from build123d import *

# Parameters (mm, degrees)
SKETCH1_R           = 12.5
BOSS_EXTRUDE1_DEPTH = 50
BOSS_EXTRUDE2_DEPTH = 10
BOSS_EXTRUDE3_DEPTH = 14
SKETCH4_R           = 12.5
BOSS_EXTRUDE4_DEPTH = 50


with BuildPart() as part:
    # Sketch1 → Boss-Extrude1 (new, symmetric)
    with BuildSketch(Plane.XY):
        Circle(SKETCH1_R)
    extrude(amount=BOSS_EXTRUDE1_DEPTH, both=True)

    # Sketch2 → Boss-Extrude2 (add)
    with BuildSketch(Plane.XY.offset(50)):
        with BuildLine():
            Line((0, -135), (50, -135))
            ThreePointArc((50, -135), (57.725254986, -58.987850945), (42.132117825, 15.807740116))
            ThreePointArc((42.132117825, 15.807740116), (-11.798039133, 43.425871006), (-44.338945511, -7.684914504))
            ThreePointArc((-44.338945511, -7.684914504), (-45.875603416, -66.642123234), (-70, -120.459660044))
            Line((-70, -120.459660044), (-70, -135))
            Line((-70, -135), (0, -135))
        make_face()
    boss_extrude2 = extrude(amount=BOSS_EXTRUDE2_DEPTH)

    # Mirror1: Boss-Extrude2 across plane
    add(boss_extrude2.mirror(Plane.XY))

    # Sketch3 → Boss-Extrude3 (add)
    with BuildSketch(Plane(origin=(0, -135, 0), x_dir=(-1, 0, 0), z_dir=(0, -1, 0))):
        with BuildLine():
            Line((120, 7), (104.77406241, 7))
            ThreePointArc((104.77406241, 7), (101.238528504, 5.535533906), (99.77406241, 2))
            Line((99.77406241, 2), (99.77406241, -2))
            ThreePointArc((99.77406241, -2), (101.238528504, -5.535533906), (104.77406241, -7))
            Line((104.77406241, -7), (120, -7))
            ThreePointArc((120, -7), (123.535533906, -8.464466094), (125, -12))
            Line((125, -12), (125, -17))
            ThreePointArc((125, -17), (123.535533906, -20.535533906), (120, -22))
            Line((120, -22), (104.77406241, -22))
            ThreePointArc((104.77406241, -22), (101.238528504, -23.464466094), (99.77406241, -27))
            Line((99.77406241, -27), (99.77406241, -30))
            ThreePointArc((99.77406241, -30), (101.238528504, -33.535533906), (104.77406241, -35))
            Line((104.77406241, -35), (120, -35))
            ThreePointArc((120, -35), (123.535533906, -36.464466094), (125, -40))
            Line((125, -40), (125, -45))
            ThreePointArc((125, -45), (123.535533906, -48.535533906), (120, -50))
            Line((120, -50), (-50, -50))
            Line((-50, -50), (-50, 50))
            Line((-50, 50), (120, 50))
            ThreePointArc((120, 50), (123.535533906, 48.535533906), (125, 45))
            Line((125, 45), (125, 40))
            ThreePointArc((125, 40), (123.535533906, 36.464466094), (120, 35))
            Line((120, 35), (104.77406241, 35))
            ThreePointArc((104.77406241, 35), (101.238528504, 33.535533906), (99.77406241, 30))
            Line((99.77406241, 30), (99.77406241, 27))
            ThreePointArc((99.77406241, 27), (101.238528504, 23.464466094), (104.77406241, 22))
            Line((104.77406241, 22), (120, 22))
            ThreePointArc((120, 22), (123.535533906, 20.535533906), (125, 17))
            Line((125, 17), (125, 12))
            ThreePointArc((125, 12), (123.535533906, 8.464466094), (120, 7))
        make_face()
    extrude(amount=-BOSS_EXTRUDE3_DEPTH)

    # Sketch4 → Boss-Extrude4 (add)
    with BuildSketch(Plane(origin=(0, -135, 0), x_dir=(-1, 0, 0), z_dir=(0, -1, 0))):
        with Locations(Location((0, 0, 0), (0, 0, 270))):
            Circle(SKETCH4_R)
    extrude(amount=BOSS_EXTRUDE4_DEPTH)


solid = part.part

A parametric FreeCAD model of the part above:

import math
import FreeCAD as App
import Part
import Sketcher

doc = App.newDocument("Part")
body = doc.addObject("PartDesign::Body", "Body")

# Sketch on XY plane
sketch1 = doc.addObject("Sketcher::SketchObject", "Sketch")
body.addObject(sketch1)
sketch1.AttachmentSupport = (doc.XY_Plane, [""])
sketch1.MapMode = "FlatFace"
sketch1.addGeometry(Part.Circle(App.Vector(0, 0, 0), App.Vector(0, 0, 1), 12), False)
sketch1.addConstraint([
    Sketcher.Constraint("Coincident", 0, 3, -1, 1),
    Sketcher.Constraint("Diameter", 0, 25.0),
])
pad1 = doc.addObject("PartDesign::Pad", "Pad")
body.addObject(pad1)
pad1.Profile = sketch1
pad1.Length = 100
pad1.Midplane = True

# Sketch on XY plane
sketch2 = doc.addObject("Sketcher::SketchObject", "Sketch001")
body.addObject(sketch2)
sketch2.AttachmentSupport = (doc.XY_Plane, [""])
sketch2.MapMode = "FlatFace"
sketch2.AttachmentOffset = App.Placement(App.Vector(0, 0, 50), App.Rotation())
sketch2.addGeometry([
    Part.ArcOfCircle(Part.Circle(App.Vector(-192, -72, 0), App.Vector(0, 0, 1), 250), math.radians(-15), math.radians(21)),  # 0
    Part.ArcOfCircle(Part.Circle(App.Vector(0, 0, 0), App.Vector(0, 0, 1), 45), math.radians(21), math.radians(190)),  # 1
    Part.ArcOfCircle(Part.Circle(App.Vector(-192, -33, 0), App.Vector(0, 0, 1), 150), math.radians(-35), math.radians(10)),  # 2
    Part.LineSegment(App.Vector(-70, -120, 0), App.Vector(-70, -135, 0)),  # 3
    Part.LineSegment(App.Vector(-70, -135, 0), App.Vector(50, -135, 0)),  # 4
], False)
sketch2.addConstraint([
    Sketcher.Constraint("Tangent", 0, 2, 1, 1),
    Sketcher.Constraint("Tangent", 1, 2, 2, 2),
    Sketcher.Constraint("Coincident", 2, 1, 3, 1),
    Sketcher.Constraint("Coincident", 3, 2, 4, 1),
    Sketcher.Constraint("Coincident", 4, 2, 0, 1),
    Sketcher.Constraint("Vertical", 3),
    Sketcher.Constraint("Horizontal", 4),
    Sketcher.Constraint("Coincident", 1, 3, -1, 1),
    Sketcher.Constraint("Radius", 0, 250.0),
    Sketcher.Constraint("Radius", 1, 45.0),
    Sketcher.Constraint("DistanceX", 4, 1, 4, 2, 120.0),
    Sketcher.Constraint("DistanceX", 2, 1, -1, 1, 70.0),
    Sketcher.Constraint("DistanceY", 3, 2, -1, 1, 135.0),
    Sketcher.Constraint("Radius", 2, 150.153152),
    Sketcher.Constraint("DistanceY", 3, 2, 3, 1, 14.54034),
])
pad2 = doc.addObject("PartDesign::Pad", "Pad001")
body.addObject(pad2)
pad2.Profile = sketch2
pad2.Length = 10
doc.recompute()

mirrored = doc.addObject("PartDesign::Mirrored", "Mirrored")
body.addObject(mirrored)
mirrored.Originals = [pad2]
mirrored.MirrorPlane = (doc.XY_Plane, [""])
body.Tip = mirrored

# Sketch on XZ plane
sketch3 = doc.addObject("Sketcher::SketchObject", "Sketch002")
body.addObject(sketch3)
sketch3.AttachmentSupport = (doc.XZ_Plane, [""])
sketch3.MapMode = "FlatFace"
sketch3.AttachmentOffset = App.Placement(App.Vector(0, 0, 135), App.Rotation())
sketch3.addGeometry([
    Part.LineSegment(App.Vector(-104.8, -7, 0), App.Vector(-120, -7, 0)),  # 0
    Part.ArcOfCircle(Part.Circle(App.Vector(-120, -12, 0), App.Vector(0, 0, 1), 5), math.radians(90), math.radians(180)),  # 1
    Part.LineSegment(App.Vector(-125, -12, 0), App.Vector(-125, -17, 0)),  # 2
    Part.ArcOfCircle(Part.Circle(App.Vector(-120, -17, 0), App.Vector(0, 0, 1), 5), math.radians(180), math.radians(270)),  # 3
    Part.LineSegment(App.Vector(-120, -22, 0), App.Vector(-104.8, -22, 0)),  # 4
    Part.ArcOfCircle(Part.Circle(App.Vector(-104.8, -27, 0), App.Vector(0, 0, 1), 5), math.radians(0), math.radians(90)),  # 5
    Part.LineSegment(App.Vector(-99.8, -27, 0), App.Vector(-99.8, -30, 0)),  # 6
    Part.ArcOfCircle(Part.Circle(App.Vector(-104.8, -30, 0), App.Vector(0, 0, 1), 5), math.radians(-90), math.radians(0)),  # 7
    Part.LineSegment(App.Vector(-104.8, -35, 0), App.Vector(-120, -35, 0)),  # 8
    Part.ArcOfCircle(Part.Circle(App.Vector(-120, -40, 0), App.Vector(0, 0, 1), 5), math.radians(90), math.radians(180)),  # 9
    Part.LineSegment(App.Vector(-125, -40, 0), App.Vector(-125, -45, 0)),  # 10
    Part.ArcOfCircle(Part.Circle(App.Vector(-120, -45, 0), App.Vector(0, 0, 1), 5), math.radians(180), math.radians(270)),  # 11
    Part.LineSegment(App.Vector(-120, -50, 0), App.Vector(50, -50, 0)),  # 12
    Part.LineSegment(App.Vector(50, -50, 0), App.Vector(50, 50, 0)),  # 13
    Part.LineSegment(App.Vector(50, 50, 0), App.Vector(-120, 50, 0)),  # 14
    Part.ArcOfCircle(Part.Circle(App.Vector(-120, 45, 0), App.Vector(0, 0, 1), 5), math.radians(90), math.radians(180)),  # 15
    Part.LineSegment(App.Vector(-125, 45, 0), App.Vector(-125, 40, 0)),  # 16
    Part.ArcOfCircle(Part.Circle(App.Vector(-120, 40, 0), App.Vector(0, 0, 1), 5), math.radians(180), math.radians(270)),  # 17
    Part.LineSegment(App.Vector(-120, 35, 0), App.Vector(-104.8, 35, 0)),  # 18
    Part.ArcOfCircle(Part.Circle(App.Vector(-104.8, 30, 0), App.Vector(0, 0, 1), 5), math.radians(0), math.radians(90)),  # 19
    Part.LineSegment(App.Vector(-99.8, 30, 0), App.Vector(-99.8, 27, 0)),  # 20
    Part.ArcOfCircle(Part.Circle(App.Vector(-104.8, 27, 0), App.Vector(0, 0, 1), 5), math.radians(-90), math.radians(0)),  # 21
    Part.LineSegment(App.Vector(-104.8, 22, 0), App.Vector(-120, 22, 0)),  # 22
    Part.ArcOfCircle(Part.Circle(App.Vector(-120, 17, 0), App.Vector(0, 0, 1), 5), math.radians(90), math.radians(180)),  # 23
    Part.LineSegment(App.Vector(-125, 17, 0), App.Vector(-125, 12, 0)),  # 24
    Part.ArcOfCircle(Part.Circle(App.Vector(-120, 12, 0), App.Vector(0, 0, 1), 5), math.radians(180), math.radians(270)),  # 25
    Part.LineSegment(App.Vector(-120, 7, 0), App.Vector(-104.8, 7, 0)),  # 26
    Part.ArcOfCircle(Part.Circle(App.Vector(-104.8, 2, 0), App.Vector(0, 0, 1), 5), math.radians(0), math.radians(90)),  # 27
    Part.LineSegment(App.Vector(-99.8, 2, 0), App.Vector(-99.8, -2, 0)),  # 28
    Part.ArcOfCircle(Part.Circle(App.Vector(-104.8, -2, 0), App.Vector(0, 0, 1), 5), math.radians(-90), math.radians(0)),  # 29
], False)
sketch3.addConstraint([
    Sketcher.Constraint("Tangent", 0, 2, 1, 1),
    Sketcher.Constraint("Tangent", 1, 2, 2, 1),
    Sketcher.Constraint("Tangent", 2, 2, 3, 1),
    Sketcher.Constraint("Tangent", 3, 2, 4, 1),
    Sketcher.Constraint("Tangent", 4, 2, 5, 2),
    Sketcher.Constraint("Tangent", 5, 1, 6, 1),
    Sketcher.Constraint("Tangent", 6, 2, 7, 2),
    Sketcher.Constraint("Tangent", 7, 1, 8, 1),
    Sketcher.Constraint("Tangent", 8, 2, 9, 1),
    Sketcher.Constraint("Tangent", 9, 2, 10, 1),
    Sketcher.Constraint("Tangent", 10, 2, 11, 1),
    Sketcher.Constraint("Tangent", 11, 2, 12, 1),
    Sketcher.Constraint("Coincident", 12, 2, 13, 1),
    Sketcher.Constraint("Coincident", 13, 2, 14, 1),
    Sketcher.Constraint("Tangent", 14, 2, 15, 1),
    Sketcher.Constraint("Tangent", 15, 2, 16, 1),
    Sketcher.Constraint("Tangent", 16, 2, 17, 1),
    Sketcher.Constraint("Tangent", 17, 2, 18, 1),
    Sketcher.Constraint("Tangent", 18, 2, 19, 2),
    Sketcher.Constraint("Tangent", 19, 1, 20, 1),
    Sketcher.Constraint("Tangent", 20, 2, 21, 2),
    Sketcher.Constraint("Tangent", 21, 1, 22, 1),
    Sketcher.Constraint("Tangent", 22, 2, 23, 1),
    Sketcher.Constraint("Tangent", 23, 2, 24, 1),
    Sketcher.Constraint("Tangent", 24, 2, 25, 1),
    Sketcher.Constraint("Tangent", 25, 2, 26, 1),
    Sketcher.Constraint("Tangent", 26, 2, 27, 2),
    Sketcher.Constraint("Tangent", 27, 1, 28, 1),
    Sketcher.Constraint("Tangent", 28, 2, 29, 2),
    Sketcher.Constraint("Tangent", 29, 1, 0, 1),
    Sketcher.Constraint("Horizontal", 0),
    Sketcher.Constraint("Vertical", 2),
    Sketcher.Constraint("Horizontal", 4),
    Sketcher.Constraint("Vertical", 6),
    Sketcher.Constraint("Horizontal", 8),
    Sketcher.Constraint("Vertical", 10),
    Sketcher.Constraint("Horizontal", 12),
    Sketcher.Constraint("Vertical", 13),
    Sketcher.Constraint("Horizontal", 14),
    Sketcher.Constraint("Vertical", 16),
    Sketcher.Constraint("Horizontal", 18),
    Sketcher.Constraint("Vertical", 20),
    Sketcher.Constraint("Horizontal", 22),
    Sketcher.Constraint("Vertical", 24),
    Sketcher.Constraint("Horizontal", 26),
    Sketcher.Constraint("Vertical", 28),
    Sketcher.Constraint("Equal", 1, 3),
    Sketcher.Constraint("Equal", 3, 5),
    Sketcher.Constraint("Equal", 5, 7),
    Sketcher.Constraint("Equal", 7, 9),
    Sketcher.Constraint("Equal", 9, 11),
    Sketcher.Constraint("Equal", 11, 15),
    Sketcher.Constraint("Equal", 15, 17),
    Sketcher.Constraint("Equal", 17, 19),
    Sketcher.Constraint("Equal", 19, 21),
    Sketcher.Constraint("Equal", 21, 23),
    Sketcher.Constraint("Equal", 23, 25),
    Sketcher.Constraint("Equal", 25, 27),
    Sketcher.Constraint("Equal", 27, 29),
    Sketcher.Constraint("Symmetric", 11, 3, 15, 3, -1),
    Sketcher.Constraint("Symmetric", 7, 3, 19, 3, -1),
    Sketcher.Constraint("Symmetric", 3, 3, 23, 3, -1),
    Sketcher.Constraint("Vertical", 3, 3, 9, 3),
    Sketcher.Constraint("Vertical", 21, 3, 27, 3),
    Sketcher.Constraint("Equal", 2, 10),
    Sketcher.Constraint("Equal", 16, 24),
    Sketcher.Constraint("Radius", 1, 5.0),
    Sketcher.Constraint("DistanceX", 12, 1, 12, 2, 170.0),
    Sketcher.Constraint("DistanceY", 2, 2, 2, 1, 5.0),
    Sketcher.Constraint("DistanceY", 6, 2, 6, 1, 3.0),
    Sketcher.Constraint("DistanceY", 13, 1, 13, 2, 100.0),
    Sketcher.Constraint("DistanceX", 1, 3, -1, 1, 120.0),
    Sketcher.Constraint("DistanceX", 0, 2, 0, 1, 15.225938),
])
pad3 = doc.addObject("PartDesign::Pad", "Pad002")
body.addObject(pad3)
pad3.Profile = sketch3
pad3.Length = 14
pad3.Reversed = True

# Sketch on XZ plane
sketch4 = doc.addObject("Sketcher::SketchObject", "Sketch003")
body.addObject(sketch4)
sketch4.AttachmentSupport = (doc.XZ_Plane, [""])
sketch4.MapMode = "FlatFace"
sketch4.AttachmentOffset = App.Placement(App.Vector(0, 0, 135), App.Rotation())
sketch4.addGeometry(Part.Circle(App.Vector(0, 0, 0), App.Vector(0, 0, 1), 12), False)
sketch4.addConstraint([
    Sketcher.Constraint("Coincident", 0, 3, -1, 1),
    Sketcher.Constraint("Diameter", 0, 25.0),
])
pad4 = doc.addObject("PartDesign::Pad", "Pad003")
body.addObject(pad4)
pad4.Profile = sketch4
pad4.Length = 50

doc.recompute()
